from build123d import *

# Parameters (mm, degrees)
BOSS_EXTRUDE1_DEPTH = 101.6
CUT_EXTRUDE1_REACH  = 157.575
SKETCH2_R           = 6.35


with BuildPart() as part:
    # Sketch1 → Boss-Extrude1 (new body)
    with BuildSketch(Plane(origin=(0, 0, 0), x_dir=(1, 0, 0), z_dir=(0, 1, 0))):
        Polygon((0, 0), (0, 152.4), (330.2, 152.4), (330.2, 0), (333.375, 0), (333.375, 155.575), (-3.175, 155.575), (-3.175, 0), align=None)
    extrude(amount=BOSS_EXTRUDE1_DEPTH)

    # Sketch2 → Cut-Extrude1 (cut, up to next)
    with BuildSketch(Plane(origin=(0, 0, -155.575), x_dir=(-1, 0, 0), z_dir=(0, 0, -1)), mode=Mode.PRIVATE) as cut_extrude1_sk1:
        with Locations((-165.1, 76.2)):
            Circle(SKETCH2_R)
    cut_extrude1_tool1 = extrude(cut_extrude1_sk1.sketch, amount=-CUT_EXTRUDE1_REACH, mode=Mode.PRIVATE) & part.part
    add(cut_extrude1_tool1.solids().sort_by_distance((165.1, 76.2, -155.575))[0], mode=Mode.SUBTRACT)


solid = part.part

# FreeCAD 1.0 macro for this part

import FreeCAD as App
import Part
import Sketcher

V = App.Vector
Q = App.Units.Quantity


def add_polygon(sketch, points):
    """Adds a closed chain of lines whose ends are joined by coincident constraints."""
    first, n = sketch.GeometryCount, len(points)
    for a, b in zip(points, points[1:] + points[:1]):
        sketch.addGeometry(Part.LineSegment(App.Vector(*a, 0), App.Vector(*b, 0)), False)
    for i in range(n):
        sketch.addConstraint(Sketcher.Constraint("Coincident", first + i, 2, first + (i + 1) % n, 1))

doc = App.newDocument("Part")
body = doc.addObject("PartDesign::Body", "Body")

# Sketch on XZ plane
sketch1 = body.newObject("Sketcher::SketchObject", "Sketch")
sketch1.AttachmentSupport = (doc.getObject("XZ_Plane"), [""])
sketch1.MapMode = "FlatFace"
add_polygon(sketch1, [(0, 0), (0, -152.4), (330.2, -152.4), (330.2, 0), (333.4, 0), (333.4, -155.6), (-3.2, -155.6), (-3.2, 0)])  # lines 0-7
sketch1.addConstraint([
    Sketcher.Constraint("Vertical", 0),
    Sketcher.Constraint("Horizontal", 1),
    Sketcher.Constraint("Vertical", 2),
    Sketcher.Constraint("Horizontal", 3),
    Sketcher.Constraint("Vertical", 4),
    Sketcher.Constraint("Horizontal", 5),
    Sketcher.Constraint("Vertical", 6),
    Sketcher.Constraint("Horizontal", 7),
    Sketcher.Constraint("Coincident", 7, 2, -1, 1),
    Sketcher.Constraint("PointOnObject", 2, 2, -1),
    Sketcher.Constraint("Equal", 3, 7),
    Sketcher.Constraint("DistanceX", 1, 1, 1, 2, Q("13 in")),
    Sketcher.Constraint("DistanceY", 0, 2, 0, 1, Q("6 in")),
    Sketcher.Constraint("DistanceX", 5, 2, 5, 1, Q("13.25 in")),
    Sketcher.Constraint("DistanceY", 4, 2, 4, 1, Q("6.125 in")),
])
pad1 = body.newObject("PartDesign::Pad", "Pad")
pad1.Profile = sketch1
pad1.Length = Q("4 in")
pad1.Reversed = True

# Sketch on XY plane
sketch2 = body.newObject("Sketcher::SketchObject", "Sketch001")
sketch2.AttachmentSupport = (doc.getObject("XY_Plane"), [""])
sketch2.MapMode = "FlatFace"
sketch2.AttachmentOffset = App.Placement(V(0, 0, -6.125 * 25.4), App.Rotation())
sketch2.addGeometry(Part.Circle(V(165, 76, 0), V(0, 0, 1), 6), False)
sketch2.addConstraint([
    Sketcher.Constraint("Diameter", 0, Q("0.5 in")),
    Sketcher.Constraint("DistanceY", -1, 1, 0, 3, Q("3 in")),
    Sketcher.Constraint("DistanceX", -1, 1, 0, 3, Q("6.5 in")),
])
pocket1 = body.newObject("PartDesign::Pocket", "Pocket")
pocket1.Profile = sketch2
pocket1.Type = "UpToFirst"
pocket1.Reversed = True

doc.recompute()
